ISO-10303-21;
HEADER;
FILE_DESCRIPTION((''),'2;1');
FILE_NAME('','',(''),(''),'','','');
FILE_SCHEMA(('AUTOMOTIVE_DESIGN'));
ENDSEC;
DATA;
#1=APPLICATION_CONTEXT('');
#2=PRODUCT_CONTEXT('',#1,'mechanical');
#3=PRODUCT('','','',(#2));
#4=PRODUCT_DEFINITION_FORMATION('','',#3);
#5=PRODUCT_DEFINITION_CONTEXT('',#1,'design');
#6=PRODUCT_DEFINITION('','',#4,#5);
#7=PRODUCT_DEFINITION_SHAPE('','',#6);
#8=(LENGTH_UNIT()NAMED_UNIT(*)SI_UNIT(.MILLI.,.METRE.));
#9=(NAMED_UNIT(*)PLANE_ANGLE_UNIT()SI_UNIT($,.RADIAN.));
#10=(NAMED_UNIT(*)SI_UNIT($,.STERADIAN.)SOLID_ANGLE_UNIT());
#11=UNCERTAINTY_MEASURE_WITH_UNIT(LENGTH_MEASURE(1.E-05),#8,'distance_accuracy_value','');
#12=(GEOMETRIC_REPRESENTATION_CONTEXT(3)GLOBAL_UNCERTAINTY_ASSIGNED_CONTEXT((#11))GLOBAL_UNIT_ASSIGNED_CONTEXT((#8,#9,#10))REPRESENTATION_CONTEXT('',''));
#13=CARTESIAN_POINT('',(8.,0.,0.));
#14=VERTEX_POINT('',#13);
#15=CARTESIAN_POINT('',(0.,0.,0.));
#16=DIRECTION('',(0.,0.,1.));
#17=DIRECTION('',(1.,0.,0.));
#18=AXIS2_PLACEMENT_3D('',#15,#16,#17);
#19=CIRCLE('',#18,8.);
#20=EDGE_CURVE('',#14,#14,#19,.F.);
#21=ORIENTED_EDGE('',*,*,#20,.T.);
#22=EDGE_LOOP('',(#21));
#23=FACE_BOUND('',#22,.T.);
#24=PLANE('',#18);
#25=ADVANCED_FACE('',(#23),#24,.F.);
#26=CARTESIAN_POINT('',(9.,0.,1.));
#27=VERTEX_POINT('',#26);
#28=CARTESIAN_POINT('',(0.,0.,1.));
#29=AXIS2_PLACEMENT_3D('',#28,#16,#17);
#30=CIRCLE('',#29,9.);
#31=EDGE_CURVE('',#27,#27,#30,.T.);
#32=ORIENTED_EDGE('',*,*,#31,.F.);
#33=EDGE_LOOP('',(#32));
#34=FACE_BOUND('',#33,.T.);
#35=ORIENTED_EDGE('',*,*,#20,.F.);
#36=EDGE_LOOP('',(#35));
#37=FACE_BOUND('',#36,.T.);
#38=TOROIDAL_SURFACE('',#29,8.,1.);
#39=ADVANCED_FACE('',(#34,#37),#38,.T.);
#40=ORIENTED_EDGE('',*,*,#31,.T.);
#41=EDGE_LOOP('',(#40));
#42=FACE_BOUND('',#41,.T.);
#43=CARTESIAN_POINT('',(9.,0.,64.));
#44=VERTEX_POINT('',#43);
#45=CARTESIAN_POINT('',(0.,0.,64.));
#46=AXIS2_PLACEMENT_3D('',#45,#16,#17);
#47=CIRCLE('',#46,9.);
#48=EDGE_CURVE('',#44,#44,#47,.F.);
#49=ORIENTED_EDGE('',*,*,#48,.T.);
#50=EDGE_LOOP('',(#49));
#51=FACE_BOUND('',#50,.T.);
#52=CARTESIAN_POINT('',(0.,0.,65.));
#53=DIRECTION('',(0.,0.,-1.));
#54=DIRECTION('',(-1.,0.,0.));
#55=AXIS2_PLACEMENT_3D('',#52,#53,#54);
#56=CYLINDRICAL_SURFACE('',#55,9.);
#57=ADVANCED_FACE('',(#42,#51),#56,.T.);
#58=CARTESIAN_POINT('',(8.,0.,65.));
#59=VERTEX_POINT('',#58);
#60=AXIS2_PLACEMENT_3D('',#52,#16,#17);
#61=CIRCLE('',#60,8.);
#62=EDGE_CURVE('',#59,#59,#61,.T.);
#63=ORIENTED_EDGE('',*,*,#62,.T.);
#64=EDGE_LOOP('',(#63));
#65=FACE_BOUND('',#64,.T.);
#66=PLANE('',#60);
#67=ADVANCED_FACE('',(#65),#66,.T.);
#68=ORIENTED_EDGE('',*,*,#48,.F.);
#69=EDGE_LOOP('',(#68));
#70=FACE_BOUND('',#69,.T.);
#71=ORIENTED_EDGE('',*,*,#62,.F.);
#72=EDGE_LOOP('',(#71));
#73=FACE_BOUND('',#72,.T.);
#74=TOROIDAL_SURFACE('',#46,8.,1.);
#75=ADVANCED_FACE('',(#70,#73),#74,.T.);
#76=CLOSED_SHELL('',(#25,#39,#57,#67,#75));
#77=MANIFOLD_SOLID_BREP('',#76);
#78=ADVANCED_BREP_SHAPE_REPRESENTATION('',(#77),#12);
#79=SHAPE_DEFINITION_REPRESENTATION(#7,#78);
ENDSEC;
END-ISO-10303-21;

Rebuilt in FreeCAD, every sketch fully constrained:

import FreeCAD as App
import Part
import Sketcher


def edges_at(feature, points):
    """Names of the edges that pass closest to the given points."""
    edges = feature.Shape.Edges
    near = lambda p: min(range(len(edges)), key=lambda i: edges[i].distToShape(Part.Vertex(*p))[0])
    return sorted({f"Edge{near(p) + 1}" for p in points})

doc = App.newDocument("Part")
body = doc.addObject("PartDesign::Body", "Body")

# Sketch on XY plane
sketch1 = body.newObject("Sketcher::SketchObject", "Sketch")
sketch1.AttachmentSupport = (doc.getObject("XY_Plane"), [""])
sketch1.MapMode = "FlatFace"
sketch1.addGeometry(Part.Circle(App.Vector(0, 0, 0), App.Vector(0, 0, 1), 9), False)
sketch1.addConstraint([
    Sketcher.Constraint("Coincident", 0, 3, -1, 1),
    Sketcher.Constraint("Diameter", 0, 18.0),
])
pad1 = body.newObject("PartDesign::Pad", "Pad")
pad1.Profile = sketch1
pad1.Length = 65
doc.recompute()

fillet = body.newObject("PartDesign::Fillet", "Fillet")
fillet.Base = (pad1, edges_at(pad1, [(-9, 0, 0), (-9, 0, 65)]))
fillet.Radius = 1

doc.recompute()
